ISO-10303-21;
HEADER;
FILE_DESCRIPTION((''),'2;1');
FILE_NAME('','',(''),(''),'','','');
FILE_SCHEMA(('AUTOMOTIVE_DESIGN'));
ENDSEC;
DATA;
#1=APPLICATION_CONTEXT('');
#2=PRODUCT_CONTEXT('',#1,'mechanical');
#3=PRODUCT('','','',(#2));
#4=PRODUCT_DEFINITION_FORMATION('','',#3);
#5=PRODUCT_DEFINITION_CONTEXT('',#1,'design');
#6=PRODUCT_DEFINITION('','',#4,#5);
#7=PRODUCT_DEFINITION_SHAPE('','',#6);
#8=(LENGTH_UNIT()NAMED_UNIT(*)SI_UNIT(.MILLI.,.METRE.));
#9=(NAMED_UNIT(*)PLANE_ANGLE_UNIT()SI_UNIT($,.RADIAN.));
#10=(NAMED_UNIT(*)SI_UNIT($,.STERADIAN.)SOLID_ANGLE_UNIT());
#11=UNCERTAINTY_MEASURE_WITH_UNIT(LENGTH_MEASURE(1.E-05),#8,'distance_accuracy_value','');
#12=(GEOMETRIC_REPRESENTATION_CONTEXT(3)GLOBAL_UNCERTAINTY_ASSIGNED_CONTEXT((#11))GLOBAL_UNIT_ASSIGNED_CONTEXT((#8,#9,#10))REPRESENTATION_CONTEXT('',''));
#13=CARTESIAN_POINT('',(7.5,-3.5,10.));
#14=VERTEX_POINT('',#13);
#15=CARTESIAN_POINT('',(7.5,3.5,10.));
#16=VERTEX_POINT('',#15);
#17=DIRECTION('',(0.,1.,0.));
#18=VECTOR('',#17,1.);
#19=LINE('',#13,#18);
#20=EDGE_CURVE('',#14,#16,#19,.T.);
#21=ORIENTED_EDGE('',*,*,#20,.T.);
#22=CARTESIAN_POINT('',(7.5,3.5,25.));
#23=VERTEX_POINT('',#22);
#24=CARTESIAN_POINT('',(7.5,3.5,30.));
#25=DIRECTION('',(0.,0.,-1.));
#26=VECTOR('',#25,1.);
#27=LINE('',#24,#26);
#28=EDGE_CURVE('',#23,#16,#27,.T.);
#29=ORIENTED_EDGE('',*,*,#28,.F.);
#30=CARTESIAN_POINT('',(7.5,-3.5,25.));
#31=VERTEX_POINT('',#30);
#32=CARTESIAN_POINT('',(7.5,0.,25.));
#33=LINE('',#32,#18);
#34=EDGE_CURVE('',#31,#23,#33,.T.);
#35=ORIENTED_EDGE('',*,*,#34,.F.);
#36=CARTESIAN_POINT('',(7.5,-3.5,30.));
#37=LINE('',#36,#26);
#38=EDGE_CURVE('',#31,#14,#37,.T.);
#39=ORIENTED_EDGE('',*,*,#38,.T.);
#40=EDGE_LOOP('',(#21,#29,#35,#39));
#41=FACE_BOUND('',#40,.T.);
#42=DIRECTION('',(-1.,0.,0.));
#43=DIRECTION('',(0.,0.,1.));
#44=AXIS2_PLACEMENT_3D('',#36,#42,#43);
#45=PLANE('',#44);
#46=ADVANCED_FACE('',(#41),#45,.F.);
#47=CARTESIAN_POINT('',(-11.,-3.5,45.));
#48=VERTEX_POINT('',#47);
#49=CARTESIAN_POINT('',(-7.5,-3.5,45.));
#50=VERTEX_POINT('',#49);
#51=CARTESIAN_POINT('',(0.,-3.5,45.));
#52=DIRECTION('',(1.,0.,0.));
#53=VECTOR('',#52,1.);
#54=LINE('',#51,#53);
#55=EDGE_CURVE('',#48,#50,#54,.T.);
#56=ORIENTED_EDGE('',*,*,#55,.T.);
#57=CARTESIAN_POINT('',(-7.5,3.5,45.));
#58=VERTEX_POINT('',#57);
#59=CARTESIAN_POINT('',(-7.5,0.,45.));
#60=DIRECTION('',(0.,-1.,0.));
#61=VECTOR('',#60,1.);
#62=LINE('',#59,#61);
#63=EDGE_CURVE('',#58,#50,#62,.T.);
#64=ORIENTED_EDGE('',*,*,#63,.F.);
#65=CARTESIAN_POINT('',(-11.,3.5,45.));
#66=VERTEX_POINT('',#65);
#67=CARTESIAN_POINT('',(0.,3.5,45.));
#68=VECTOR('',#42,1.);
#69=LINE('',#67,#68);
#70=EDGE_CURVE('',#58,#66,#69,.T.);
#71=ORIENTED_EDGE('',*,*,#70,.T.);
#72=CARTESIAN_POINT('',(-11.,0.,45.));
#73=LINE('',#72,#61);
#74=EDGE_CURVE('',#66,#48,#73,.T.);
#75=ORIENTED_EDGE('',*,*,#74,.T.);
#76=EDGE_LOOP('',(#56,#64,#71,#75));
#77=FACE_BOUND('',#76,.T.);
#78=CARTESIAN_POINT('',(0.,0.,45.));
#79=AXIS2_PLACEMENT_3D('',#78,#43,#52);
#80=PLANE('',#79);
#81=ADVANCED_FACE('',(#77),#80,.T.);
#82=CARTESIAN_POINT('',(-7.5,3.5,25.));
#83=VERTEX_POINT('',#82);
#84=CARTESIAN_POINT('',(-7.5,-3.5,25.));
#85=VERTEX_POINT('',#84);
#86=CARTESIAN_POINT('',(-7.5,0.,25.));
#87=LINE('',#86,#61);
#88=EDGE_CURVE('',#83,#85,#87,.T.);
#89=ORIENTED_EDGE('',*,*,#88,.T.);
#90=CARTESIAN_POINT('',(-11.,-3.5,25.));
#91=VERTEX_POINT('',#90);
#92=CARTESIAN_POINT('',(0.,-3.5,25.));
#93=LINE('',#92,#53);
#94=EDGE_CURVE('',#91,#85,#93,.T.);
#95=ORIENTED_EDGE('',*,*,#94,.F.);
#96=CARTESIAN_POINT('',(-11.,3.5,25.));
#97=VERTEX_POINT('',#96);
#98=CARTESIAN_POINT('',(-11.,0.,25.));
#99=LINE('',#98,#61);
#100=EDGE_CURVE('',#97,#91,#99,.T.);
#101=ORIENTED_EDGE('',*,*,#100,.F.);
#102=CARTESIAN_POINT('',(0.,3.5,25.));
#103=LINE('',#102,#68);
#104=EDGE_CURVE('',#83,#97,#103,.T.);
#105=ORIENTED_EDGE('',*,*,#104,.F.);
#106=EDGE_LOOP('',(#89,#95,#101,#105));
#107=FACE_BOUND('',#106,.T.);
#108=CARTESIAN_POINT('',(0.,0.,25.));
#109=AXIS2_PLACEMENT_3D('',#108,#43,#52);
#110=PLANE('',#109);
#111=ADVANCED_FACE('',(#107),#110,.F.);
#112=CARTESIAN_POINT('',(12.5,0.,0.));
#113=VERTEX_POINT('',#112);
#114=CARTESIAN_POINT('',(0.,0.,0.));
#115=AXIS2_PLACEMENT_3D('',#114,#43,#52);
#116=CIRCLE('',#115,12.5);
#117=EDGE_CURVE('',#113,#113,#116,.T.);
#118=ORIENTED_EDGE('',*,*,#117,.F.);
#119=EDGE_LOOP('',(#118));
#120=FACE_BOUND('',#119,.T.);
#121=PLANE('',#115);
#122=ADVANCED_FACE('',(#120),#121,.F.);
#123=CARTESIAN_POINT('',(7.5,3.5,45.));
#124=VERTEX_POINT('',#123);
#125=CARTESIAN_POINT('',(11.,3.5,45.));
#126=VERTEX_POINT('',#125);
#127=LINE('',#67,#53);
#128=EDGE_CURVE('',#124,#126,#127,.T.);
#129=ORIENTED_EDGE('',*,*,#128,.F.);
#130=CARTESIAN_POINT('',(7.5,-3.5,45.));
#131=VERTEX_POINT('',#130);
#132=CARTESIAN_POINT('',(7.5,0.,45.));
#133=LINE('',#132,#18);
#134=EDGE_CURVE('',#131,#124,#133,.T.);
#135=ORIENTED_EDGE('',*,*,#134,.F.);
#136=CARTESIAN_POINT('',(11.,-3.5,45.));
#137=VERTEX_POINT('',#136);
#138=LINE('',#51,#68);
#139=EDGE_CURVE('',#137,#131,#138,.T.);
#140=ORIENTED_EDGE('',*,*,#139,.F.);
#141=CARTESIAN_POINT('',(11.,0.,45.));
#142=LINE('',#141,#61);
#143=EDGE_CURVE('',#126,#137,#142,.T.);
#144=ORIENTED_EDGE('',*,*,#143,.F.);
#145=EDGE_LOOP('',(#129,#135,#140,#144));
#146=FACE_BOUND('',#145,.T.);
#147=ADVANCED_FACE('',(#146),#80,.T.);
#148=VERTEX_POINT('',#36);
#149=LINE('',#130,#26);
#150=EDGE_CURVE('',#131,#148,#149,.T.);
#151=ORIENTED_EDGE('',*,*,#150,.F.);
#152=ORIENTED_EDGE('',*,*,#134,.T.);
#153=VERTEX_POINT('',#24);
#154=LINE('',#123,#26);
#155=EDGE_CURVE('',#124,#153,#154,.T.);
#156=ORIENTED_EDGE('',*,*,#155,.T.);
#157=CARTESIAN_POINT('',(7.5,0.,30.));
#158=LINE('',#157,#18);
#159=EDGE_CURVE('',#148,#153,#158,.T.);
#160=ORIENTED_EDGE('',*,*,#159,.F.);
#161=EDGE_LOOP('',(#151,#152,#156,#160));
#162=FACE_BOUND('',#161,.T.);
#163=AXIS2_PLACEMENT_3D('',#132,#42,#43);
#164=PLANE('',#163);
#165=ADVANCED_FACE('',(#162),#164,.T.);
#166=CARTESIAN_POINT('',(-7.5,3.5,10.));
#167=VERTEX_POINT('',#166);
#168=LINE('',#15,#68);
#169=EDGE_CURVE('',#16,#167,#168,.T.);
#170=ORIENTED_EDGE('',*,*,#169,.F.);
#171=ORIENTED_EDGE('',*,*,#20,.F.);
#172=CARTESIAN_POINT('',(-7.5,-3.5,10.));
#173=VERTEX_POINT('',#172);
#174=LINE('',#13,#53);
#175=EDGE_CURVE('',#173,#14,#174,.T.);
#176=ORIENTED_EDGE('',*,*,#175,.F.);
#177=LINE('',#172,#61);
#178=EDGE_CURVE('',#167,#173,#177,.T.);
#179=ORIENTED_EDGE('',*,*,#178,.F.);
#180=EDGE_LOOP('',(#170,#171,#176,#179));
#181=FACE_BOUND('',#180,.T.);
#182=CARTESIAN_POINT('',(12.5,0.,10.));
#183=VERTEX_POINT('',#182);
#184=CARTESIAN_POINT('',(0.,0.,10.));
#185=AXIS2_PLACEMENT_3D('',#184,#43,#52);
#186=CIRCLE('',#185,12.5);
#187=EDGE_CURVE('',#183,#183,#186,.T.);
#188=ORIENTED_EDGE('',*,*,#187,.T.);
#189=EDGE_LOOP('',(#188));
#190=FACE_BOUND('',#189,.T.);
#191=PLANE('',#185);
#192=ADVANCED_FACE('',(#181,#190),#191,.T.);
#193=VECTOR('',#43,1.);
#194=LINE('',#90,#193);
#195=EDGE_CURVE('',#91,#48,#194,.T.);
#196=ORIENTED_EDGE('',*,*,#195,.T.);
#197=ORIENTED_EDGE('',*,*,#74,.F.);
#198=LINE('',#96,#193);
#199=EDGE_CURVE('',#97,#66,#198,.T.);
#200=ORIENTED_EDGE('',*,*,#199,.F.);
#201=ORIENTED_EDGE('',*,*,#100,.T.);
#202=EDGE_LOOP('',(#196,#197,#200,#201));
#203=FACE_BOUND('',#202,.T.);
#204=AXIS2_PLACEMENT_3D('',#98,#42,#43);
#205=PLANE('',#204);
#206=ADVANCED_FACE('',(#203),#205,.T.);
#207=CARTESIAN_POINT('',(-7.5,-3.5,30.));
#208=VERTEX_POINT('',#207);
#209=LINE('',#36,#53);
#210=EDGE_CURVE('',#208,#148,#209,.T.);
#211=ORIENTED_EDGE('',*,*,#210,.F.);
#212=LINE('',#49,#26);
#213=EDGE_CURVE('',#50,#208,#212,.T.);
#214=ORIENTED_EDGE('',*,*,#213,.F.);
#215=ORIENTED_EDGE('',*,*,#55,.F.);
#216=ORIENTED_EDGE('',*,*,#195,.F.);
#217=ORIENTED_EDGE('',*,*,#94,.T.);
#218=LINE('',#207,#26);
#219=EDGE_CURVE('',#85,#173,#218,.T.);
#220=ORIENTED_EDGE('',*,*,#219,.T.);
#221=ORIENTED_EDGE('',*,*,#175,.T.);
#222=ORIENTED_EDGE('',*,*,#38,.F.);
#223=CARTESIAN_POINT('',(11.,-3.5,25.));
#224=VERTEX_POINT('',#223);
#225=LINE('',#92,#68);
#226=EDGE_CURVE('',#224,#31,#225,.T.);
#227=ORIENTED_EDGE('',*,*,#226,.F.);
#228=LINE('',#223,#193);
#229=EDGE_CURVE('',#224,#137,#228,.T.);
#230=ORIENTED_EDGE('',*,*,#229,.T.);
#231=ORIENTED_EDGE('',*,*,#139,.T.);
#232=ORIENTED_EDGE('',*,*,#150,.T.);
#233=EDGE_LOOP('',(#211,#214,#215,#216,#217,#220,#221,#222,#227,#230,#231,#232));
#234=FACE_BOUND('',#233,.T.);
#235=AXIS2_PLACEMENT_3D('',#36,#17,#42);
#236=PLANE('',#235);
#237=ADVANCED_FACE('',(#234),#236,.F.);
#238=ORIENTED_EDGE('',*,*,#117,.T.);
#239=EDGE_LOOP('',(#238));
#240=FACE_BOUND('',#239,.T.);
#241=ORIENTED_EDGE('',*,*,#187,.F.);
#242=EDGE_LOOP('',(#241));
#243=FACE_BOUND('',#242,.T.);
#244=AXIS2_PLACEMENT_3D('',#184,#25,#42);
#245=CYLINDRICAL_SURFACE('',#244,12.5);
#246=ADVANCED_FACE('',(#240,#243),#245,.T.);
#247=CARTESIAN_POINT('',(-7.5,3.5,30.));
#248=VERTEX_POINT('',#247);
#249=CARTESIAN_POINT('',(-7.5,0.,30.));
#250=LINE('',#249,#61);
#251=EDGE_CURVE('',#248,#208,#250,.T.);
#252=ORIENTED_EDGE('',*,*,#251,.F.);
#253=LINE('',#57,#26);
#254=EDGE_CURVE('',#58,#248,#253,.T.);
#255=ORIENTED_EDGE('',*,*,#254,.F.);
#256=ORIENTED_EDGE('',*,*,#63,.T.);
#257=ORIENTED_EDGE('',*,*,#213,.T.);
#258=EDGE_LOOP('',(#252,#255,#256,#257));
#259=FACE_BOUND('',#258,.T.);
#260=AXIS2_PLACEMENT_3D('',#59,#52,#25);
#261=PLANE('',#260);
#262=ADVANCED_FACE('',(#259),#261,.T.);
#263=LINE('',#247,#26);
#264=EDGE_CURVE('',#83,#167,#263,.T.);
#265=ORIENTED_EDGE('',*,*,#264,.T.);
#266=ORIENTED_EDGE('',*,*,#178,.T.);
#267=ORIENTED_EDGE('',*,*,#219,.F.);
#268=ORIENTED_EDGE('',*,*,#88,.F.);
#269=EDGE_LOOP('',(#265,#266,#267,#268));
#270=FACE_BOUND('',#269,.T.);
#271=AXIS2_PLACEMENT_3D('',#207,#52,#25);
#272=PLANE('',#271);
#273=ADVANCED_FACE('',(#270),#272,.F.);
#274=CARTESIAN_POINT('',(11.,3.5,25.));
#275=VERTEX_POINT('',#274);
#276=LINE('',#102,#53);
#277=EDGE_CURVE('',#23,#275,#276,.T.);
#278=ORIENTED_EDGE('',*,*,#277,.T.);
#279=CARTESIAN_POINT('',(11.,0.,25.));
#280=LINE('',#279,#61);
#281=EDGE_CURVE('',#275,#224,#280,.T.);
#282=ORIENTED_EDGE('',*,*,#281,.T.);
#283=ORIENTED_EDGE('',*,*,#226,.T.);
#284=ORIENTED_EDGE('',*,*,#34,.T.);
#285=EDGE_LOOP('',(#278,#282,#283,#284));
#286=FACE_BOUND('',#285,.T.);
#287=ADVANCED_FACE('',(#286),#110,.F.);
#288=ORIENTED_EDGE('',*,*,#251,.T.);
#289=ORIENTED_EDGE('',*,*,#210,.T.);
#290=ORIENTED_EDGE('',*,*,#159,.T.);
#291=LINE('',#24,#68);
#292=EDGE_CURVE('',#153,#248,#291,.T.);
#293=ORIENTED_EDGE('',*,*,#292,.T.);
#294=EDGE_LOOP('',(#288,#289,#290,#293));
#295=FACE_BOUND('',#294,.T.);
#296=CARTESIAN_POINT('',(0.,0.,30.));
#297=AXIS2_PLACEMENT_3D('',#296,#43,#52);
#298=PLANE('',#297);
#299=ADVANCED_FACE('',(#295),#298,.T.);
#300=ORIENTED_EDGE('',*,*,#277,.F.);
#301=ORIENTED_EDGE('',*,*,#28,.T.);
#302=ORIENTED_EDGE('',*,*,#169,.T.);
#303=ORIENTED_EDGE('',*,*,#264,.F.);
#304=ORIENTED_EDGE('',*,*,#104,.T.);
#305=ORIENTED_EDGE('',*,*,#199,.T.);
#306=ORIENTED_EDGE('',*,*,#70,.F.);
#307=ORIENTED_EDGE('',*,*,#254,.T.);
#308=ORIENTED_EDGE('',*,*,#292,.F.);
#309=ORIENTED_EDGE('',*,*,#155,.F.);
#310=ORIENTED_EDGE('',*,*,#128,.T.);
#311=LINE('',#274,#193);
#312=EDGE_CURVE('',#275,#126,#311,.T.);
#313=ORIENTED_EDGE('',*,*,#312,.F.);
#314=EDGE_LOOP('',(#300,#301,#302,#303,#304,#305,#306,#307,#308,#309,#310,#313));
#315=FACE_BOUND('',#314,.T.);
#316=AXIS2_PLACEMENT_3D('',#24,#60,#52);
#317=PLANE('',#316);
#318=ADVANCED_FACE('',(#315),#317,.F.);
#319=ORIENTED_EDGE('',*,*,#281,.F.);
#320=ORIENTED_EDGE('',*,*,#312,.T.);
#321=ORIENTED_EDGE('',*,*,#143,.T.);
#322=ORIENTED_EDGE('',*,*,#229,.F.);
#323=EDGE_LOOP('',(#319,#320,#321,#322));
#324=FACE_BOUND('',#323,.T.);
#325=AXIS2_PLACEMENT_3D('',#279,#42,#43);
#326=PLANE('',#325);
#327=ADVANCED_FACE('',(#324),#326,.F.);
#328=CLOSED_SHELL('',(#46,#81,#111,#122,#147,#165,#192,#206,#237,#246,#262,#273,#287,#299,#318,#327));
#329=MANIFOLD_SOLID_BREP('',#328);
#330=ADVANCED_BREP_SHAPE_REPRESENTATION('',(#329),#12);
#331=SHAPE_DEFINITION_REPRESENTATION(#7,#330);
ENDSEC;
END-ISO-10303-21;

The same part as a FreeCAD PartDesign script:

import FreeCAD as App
import Part
import Sketcher

V = App.Vector


def add_polygon(sketch, points):
    """Adds a closed chain of lines whose ends are joined by coincident constraints."""
    first, n = sketch.GeometryCount, len(points)
    for a, b in zip(points, points[1:] + points[:1]):
        sketch.addGeometry(Part.LineSegment(App.Vector(*a, 0), App.Vector(*b, 0)), False)
    for i in range(n):
        sketch.addConstraint(Sketcher.Constraint("Coincident", first + i, 2, first + (i + 1) % n, 1))

doc = App.newDocument("Part")
params = doc.addObject("Spreadsheet::Sheet", "Params")
for row, (alias, value) in enumerate([
    ("sketch1_diameter", "25 mm"),
    ("pad1_length", "10 mm"),
    ("sketch2_width", "15 mm"),
    ("sketch2_height", "7 mm"),
    ("pad2_length", "20 mm"),
    ("sketch3_height", "7 mm"),
    ("sketch3_width", "3.5 mm"),
    ("pad3_length", "15 mm"),
    ("sketch4_height", "7 mm"),
    ("sketch4_width", "3.5 mm"),
    ("pad4_length", "15 mm"),
    ("sketch5_height", "7 mm"),
    ("sketch5_width", "3.5 mm"),
    ("pad5_length", "5 mm"),
], start=1):
    params.set(f"A{row}", alias)
    params.set(f"B{row}", "=" + value)
    params.setAlias(f"B{row}", alias)

body = doc.addObject("PartDesign::Body", "Body")

sketch1 = body.newObject("Sketcher::SketchObject", "Sketch")
sketch1.AttachmentSupport = (doc.getObject("XY_Plane"), [""])
sketch1.MapMode = "FlatFace"
sketch1.addGeometry(Part.Circle(V(0, 0, 0), V(0, 0, 1), 12), False)
sketch1.addConstraint(Sketcher.Constraint("Coincident", 0, 3, -1, 1))
sketch1.addConstraint(Sketcher.Constraint("Diameter", 0, 25.0))
sketch1.setExpression("Constraints[1]", "Params.sketch1_diameter")
pad1 = body.newObject("PartDesign::Pad", "Pad")
pad1.Profile = sketch1
pad1.setExpression("Length", "Params.pad1_length")

sketch2 = body.newObject("Sketcher::SketchObject", "Sketch001")
sketch2.AttachmentSupport = (doc.getObject("XY_Plane"), [""])
sketch2.MapMode = "FlatFace"
sketch2.AttachmentOffset = App.Placement(V(0, 0, 10), App.Rotation())
add_polygon(sketch2, [(-8, 4), (-8, -4), (8, -4), (8, 4)])
sketch2.addConstraint(Sketcher.Constraint("Vertical", 0))
sketch2.addConstraint(Sketcher.Constraint("Horizontal", 1))
sketch2.addConstraint(Sketcher.Constraint("Vertical", 2))
sketch2.addConstraint(Sketcher.Constraint("Horizontal", 3))
sketch2.addConstraint(Sketcher.Constraint("Symmetric", 0, 2, 2, 2, -1, 1))
sketch2.addConstraint(Sketcher.Constraint("DistanceX", 1, 1, 1, 2, 15.0))
sketch2.addConstraint(Sketcher.Constraint("DistanceY", 0, 2, 0, 1, 7.0))
sketch2.setExpression("Constraints[9]", "Params.sketch2_width")
sketch2.setExpression("Constraints[10]", "Params.sketch2_height")
pad2 = body.newObject("PartDesign::Pad", "Pad001")
pad2.Profile = sketch2
pad2.setExpression("Length", "Params.pad2_length")
body2 = doc.addObject("PartDesign::Body", "Body001")

sketch3 = body2.newObject("Sketcher::SketchObject", "Sketch002")
sketch3.AttachmentSupport = (doc.getObject("XY_Plane001"), [""])
sketch3.MapMode = "FlatFace"
sketch3.AttachmentOffset = App.Placement(V(0, 0, 30), App.Rotation())
add_polygon(sketch3, [(-11, 3.5), (-11, -3.5), (-7.5, -3.5), (-7.5, 3.5)])
sketch3.addConstraint(Sketcher.Constraint("Vertical", 0))
sketch3.addConstraint(Sketcher.Constraint("Horizontal", 1))
sketch3.addConstraint(Sketcher.Constraint("Vertical", 2))
sketch3.addConstraint(Sketcher.Constraint("Horizontal", 3))
sketch3.addConstraint(Sketcher.Constraint("DistanceY", 0, 2, 0, 1, 7.0))
sketch3.addConstraint(Sketcher.Constraint("DistanceX", 1, 1, 1, 2, 3.5))
sketch3.addConstraint(Sketcher.Constraint("DistanceX", 0, 2, -1, 1, 11.0))
sketch3.addConstraint(Sketcher.Constraint("DistanceY", 0, 2, -1, 1, 3.5))
sketch3.setExpression("Constraints[8]", "Params.sketch3_height")
sketch3.setExpression("Constraints[9]", "Params.sketch3_width")
pad3 = body2.newObject("PartDesign::Pad", "Pad002")
pad3.Profile = sketch3
pad3.setExpression("Length", "Params.pad3_length")
body3 = doc.addObject("PartDesign::Body", "Body002")

sketch4 = body3.newObject("Sketcher::SketchObject", "Sketch003")
sketch4.AttachmentSupport = (doc.getObject("XY_Plane002"), [""])
sketch4.MapMode = "FlatFace"
sketch4.AttachmentOffset = App.Placement(V(0, 0, 30), App.Rotation())
add_polygon(sketch4, [(7.5, 3.5), (7.5, -3.5), (11, -3.5), (11, 3.5)])
sketch4.addConstraint(Sketcher.Constraint("Vertical", 0))
sketch4.addConstraint(Sketcher.Constraint("Horizontal", 1))
sketch4.addConstraint(Sketcher.Constraint("Vertical", 2))
sketch4.addConstraint(Sketcher.Constraint("Horizontal", 3))
sketch4.addConstraint(Sketcher.Constraint("DistanceY", 0, 2, 0, 1, 7.0))
sketch4.addConstraint(Sketcher.Constraint("DistanceX", 1, 1, 1, 2, 3.5))
sketch4.addConstraint(Sketcher.Constraint("DistanceX", -1, 1, 1, 2, 11.0))
sketch4.addConstraint(Sketcher.Constraint("DistanceY", 0, 2, -1, 1, 3.5))
sketch4.setExpression("Constraints[8]", "Params.sketch4_height")
sketch4.setExpression("Constraints[9]", "Params.sketch4_width")
pad4 = body3.newObject("PartDesign::Pad", "Pad003")
pad4.Profile = sketch4
pad4.setExpression("Length", "Params.pad4_length")
body.AllowCompound = True
doc.recompute()

boolean = body.newObject("PartDesign::Boolean", "Boolean")
boolean.Type = "Fuse"
boolean.addObjects([body2])
doc.recompute()

boolean2 = body.newObject("PartDesign::Boolean", "Boolean001")
boolean2.Type = "Fuse"
boolean2.addObjects([body3])

sketch5 = body.newObject("Sketcher::SketchObject", "Sketch004")
sketch5.AttachmentSupport = (doc.getObject("XY_Plane"), [""])
sketch5.MapMode = "FlatFace"
sketch5.AttachmentOffset = App.Placement(V(0, 0, 30), App.Rotation())
add_polygon(sketch5, [(-11, 3.5), (-11, -3.5), (-7.5, -3.5), (-7.5, 3.5)])
add_polygon(sketch5, [(7.5, 3.5), (7.5, -3.5), (11, -3.5), (11, 3.5)])
sketch5.addConstraint(Sketcher.Constraint("Vertical", 0))
sketch5.addConstraint(Sketcher.Constraint("Horizontal", 1))
sketch5.addConstraint(Sketcher.Constraint("Vertical", 2))
sketch5.addConstraint(Sketcher.Constraint("Horizontal", 3))
sketch5.addConstraint(Sketcher.Constraint("Vertical", 4))
sketch5.addConstraint(Sketcher.Constraint("Horizontal", 5))
sketch5.addConstraint(Sketcher.Constraint("Vertical", 6))
sketch5.addConstraint(Sketcher.Constraint("Horizontal", 7))
sketch5.addConstraint(Sketcher.Constraint("Symmetric", 2, 2, 4, 2, -1, 1))
sketch5.addConstraint(Sketcher.Constraint("Symmetric", 0, 2, 6, 2, -1, 1))
sketch5.addConstraint(Sketcher.Constraint("Horizontal", 1, 2, 4, 2))
sketch5.addConstraint(Sketcher.Constraint("DistanceY", 0, 2, 0, 1, 7.0))
sketch5.addConstraint(Sketcher.Constraint("DistanceX", 1, 1, 1, 2, 3.5))
sketch5.addConstraint(Sketcher.Constraint("DistanceX", 0, 2, -1, 1, 11.0))
sketch5.setExpression("Constraints[19]", "Params.sketch5_height")
sketch5.setExpression("Constraints[20]", "Params.sketch5_width")
pad5 = body.newObject("PartDesign::Pad", "Pad004")
pad5.Profile = sketch5
pad5.setExpression("Length", "Params.pad5_length")
pad5.Reversed = True

doc.recompute()
